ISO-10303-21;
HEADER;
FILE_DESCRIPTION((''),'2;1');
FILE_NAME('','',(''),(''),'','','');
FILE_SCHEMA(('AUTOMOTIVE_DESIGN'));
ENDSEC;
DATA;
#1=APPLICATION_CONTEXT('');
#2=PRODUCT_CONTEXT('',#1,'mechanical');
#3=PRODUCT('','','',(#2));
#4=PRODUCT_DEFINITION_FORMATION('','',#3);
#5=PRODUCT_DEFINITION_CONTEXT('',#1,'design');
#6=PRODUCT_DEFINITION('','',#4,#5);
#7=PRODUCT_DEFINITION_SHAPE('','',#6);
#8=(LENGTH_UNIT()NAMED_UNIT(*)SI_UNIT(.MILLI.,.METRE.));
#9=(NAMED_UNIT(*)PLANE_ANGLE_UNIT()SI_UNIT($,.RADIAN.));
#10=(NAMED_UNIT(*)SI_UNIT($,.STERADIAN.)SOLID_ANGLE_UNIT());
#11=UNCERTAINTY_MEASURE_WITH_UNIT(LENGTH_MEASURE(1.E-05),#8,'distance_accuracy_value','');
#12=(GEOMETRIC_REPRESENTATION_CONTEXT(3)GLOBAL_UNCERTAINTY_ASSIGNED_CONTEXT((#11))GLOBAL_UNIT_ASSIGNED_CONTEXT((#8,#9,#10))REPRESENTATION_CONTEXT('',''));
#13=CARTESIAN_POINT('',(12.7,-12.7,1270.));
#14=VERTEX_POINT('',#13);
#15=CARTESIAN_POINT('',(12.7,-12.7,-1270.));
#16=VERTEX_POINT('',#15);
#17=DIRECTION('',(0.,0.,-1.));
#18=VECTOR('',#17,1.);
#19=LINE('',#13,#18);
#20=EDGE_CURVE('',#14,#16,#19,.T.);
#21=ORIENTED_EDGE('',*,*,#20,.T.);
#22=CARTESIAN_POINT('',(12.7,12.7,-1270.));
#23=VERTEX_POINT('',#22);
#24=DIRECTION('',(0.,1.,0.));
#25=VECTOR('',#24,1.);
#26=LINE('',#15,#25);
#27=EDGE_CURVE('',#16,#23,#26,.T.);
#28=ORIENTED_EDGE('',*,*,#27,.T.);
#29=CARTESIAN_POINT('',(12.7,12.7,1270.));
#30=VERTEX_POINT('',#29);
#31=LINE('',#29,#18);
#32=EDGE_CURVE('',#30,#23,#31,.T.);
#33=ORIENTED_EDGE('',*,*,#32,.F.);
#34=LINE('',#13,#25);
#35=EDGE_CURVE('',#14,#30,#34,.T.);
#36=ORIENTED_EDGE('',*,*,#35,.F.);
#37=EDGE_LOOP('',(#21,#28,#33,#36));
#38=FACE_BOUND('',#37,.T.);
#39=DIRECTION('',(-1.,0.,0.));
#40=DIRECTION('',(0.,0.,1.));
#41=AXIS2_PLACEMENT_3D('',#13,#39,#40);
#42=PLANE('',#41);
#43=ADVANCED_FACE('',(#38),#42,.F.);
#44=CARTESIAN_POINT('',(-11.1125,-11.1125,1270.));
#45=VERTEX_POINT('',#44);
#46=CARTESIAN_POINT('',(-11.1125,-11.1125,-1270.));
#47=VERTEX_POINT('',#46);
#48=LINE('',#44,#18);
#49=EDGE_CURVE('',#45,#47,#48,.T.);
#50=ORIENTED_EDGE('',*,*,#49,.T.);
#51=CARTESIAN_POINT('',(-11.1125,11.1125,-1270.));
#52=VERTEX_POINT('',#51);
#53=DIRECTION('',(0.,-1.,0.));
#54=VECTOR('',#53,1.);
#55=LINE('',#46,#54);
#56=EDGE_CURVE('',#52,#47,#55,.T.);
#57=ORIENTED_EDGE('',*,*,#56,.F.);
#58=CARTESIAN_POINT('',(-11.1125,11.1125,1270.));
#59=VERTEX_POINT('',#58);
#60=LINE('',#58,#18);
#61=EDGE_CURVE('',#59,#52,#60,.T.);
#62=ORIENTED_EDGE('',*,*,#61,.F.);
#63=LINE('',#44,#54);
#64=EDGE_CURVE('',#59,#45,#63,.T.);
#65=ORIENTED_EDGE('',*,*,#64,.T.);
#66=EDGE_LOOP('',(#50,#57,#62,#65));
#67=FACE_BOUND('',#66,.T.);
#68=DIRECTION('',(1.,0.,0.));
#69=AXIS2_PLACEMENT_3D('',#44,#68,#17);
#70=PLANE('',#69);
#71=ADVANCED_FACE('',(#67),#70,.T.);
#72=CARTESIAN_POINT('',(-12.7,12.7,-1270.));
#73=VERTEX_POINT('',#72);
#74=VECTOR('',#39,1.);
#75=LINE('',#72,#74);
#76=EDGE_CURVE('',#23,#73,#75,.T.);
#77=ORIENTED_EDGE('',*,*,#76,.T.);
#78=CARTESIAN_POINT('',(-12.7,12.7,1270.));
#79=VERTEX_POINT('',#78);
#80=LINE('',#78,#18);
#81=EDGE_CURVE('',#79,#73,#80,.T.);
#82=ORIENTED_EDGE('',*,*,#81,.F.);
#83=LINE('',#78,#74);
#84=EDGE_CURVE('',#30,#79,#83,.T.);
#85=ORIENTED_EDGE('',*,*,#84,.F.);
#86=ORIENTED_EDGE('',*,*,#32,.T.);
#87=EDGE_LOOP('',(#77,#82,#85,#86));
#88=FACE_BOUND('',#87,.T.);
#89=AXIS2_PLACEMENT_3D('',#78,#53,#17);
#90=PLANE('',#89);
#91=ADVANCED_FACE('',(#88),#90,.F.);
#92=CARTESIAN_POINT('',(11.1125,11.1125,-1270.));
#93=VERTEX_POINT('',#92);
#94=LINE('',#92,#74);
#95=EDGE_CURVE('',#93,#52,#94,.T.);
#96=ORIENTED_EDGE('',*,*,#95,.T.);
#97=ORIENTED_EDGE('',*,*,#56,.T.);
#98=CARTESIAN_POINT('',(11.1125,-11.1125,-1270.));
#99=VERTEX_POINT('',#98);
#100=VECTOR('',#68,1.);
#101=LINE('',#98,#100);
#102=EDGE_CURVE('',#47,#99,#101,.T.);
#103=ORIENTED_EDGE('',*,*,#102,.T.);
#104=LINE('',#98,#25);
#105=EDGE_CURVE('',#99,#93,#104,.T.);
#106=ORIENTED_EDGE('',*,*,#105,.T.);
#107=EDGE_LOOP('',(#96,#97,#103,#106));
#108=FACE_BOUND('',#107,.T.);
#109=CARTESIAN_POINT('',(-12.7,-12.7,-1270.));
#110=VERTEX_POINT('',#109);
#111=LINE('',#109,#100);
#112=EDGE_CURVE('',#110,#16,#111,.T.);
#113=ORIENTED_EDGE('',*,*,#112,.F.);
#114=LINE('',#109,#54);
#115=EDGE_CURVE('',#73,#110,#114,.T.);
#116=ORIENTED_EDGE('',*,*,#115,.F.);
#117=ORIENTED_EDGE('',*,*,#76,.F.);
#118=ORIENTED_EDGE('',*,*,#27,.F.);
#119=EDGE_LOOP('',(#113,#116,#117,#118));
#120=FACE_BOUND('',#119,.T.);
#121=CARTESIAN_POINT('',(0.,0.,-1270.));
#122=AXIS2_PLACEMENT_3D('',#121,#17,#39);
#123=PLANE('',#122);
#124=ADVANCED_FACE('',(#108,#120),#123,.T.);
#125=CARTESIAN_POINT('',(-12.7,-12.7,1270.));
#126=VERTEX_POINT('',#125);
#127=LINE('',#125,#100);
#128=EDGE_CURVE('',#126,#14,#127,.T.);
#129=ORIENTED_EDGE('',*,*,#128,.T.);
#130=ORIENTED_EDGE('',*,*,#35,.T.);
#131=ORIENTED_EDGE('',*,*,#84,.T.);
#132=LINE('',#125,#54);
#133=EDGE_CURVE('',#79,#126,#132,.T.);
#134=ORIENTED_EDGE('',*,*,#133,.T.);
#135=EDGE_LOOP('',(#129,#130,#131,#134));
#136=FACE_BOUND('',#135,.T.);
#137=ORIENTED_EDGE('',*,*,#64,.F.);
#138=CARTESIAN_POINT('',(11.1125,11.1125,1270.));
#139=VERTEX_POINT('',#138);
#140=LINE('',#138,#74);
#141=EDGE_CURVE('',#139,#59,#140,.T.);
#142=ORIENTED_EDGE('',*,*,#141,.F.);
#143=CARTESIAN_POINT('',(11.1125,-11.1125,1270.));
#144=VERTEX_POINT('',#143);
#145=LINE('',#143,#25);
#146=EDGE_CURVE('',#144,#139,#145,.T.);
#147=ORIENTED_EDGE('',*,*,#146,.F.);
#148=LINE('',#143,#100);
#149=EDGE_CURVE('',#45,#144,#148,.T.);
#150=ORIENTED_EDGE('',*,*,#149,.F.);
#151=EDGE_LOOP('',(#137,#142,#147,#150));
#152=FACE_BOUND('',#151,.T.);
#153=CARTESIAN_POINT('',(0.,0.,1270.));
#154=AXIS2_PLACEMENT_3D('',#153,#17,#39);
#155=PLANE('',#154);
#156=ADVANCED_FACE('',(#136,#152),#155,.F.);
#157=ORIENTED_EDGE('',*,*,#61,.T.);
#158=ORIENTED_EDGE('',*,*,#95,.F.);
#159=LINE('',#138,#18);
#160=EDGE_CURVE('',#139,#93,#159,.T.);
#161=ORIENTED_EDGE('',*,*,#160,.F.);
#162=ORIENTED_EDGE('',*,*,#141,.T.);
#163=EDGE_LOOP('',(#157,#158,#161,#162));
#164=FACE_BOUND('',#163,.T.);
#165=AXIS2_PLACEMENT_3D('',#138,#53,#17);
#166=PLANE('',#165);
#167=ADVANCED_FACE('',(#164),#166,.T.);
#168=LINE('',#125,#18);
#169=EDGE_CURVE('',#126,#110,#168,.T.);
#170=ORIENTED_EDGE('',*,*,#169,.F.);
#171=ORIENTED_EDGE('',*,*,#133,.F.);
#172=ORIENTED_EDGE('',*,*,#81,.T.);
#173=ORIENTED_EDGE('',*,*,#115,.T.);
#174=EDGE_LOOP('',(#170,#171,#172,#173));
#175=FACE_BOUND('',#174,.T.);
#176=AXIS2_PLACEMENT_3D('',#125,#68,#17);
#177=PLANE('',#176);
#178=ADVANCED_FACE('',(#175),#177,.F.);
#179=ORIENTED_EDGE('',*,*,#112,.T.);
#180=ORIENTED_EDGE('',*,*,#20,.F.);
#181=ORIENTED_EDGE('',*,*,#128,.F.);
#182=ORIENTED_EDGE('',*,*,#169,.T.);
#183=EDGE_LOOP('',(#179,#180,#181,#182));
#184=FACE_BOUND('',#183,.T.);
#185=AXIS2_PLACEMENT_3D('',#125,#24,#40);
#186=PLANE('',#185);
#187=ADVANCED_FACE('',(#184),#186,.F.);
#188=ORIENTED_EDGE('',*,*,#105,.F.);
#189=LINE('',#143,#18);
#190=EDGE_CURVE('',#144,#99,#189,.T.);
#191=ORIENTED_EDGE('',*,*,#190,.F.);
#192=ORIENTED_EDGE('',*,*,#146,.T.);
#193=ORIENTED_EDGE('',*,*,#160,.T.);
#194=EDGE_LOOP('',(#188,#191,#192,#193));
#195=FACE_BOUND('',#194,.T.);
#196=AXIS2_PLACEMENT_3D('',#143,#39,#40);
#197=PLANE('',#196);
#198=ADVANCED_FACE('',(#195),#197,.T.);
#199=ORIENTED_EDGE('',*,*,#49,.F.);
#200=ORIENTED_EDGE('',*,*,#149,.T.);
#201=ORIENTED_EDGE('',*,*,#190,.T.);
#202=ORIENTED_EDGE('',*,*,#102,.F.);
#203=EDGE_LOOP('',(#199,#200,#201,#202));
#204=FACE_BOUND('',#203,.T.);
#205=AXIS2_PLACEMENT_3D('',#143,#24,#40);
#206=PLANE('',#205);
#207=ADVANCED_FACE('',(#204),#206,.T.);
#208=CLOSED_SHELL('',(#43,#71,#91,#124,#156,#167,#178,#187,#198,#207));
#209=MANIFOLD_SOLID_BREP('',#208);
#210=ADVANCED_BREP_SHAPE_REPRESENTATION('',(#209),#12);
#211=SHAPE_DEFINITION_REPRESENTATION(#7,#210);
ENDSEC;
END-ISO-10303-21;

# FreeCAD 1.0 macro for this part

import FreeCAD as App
import Part
import Sketcher
from FreeCAD import Vector
Q = App.Units.Quantity


def add_polygon(sketch, points):
    """Adds a closed chain of lines whose ends are joined by coincident constraints."""
    first, n = sketch.GeometryCount, len(points)
    for a, b in zip(points, points[1:] + points[:1]):
        sketch.addGeometry(Part.LineSegment(App.Vector(*a, 0), App.Vector(*b, 0)), False)
    for i in range(n):
        sketch.addConstraint(Sketcher.Constraint("Coincident", first + i, 2, first + (i + 1) % n, 1))

doc = App.newDocument("Part")
body = doc.addObject("PartDesign::Body", "Body")

# Sketch on XY plane
sketch1 = body.newObject("Sketcher::SketchObject", "Sketch")
sketch1.AttachmentSupport = (doc.getObject("XY_Plane"), [""])
sketch1.MapMode = "FlatFace"
add_polygon(sketch1, [(-13, 13), (-13, -13), (13, -13), (13, 13)])  # lines 0-3
add_polygon(sketch1, [(11, -11), (-11, -11), (-11, 11), (11, 11)])  # lines 4-7
sketch1.addConstraint([
    Sketcher.Constraint("Vertical", 0),
    Sketcher.Constraint("Horizontal", 1),
    Sketcher.Constraint("Vertical", 2),
    Sketcher.Constraint("Horizontal", 3),
    Sketcher.Constraint("Horizontal", 4),
    Sketcher.Constraint("Vertical", 5),
    Sketcher.Constraint("Horizontal", 6),
    Sketcher.Constraint("Vertical", 7),
    Sketcher.Constraint("Symmetric", 0, 2, 2, 2, -1, 1),
    Sketcher.Constraint("Symmetric", 4, 2, 6, 2, -1, 1),
    Sketcher.Constraint("Equal", 3, 0),
    Sketcher.Constraint("Equal", 6, 5),
    Sketcher.Constraint("DistanceX", 1, 1, 1, 2, Q("1 in")),
    Sketcher.Constraint("DistanceX", 4, 2, 4, 1, Q("0.875 in")),
])
pad1 = body.newObject("PartDesign::Pad", "Pad")
pad1.Profile = sketch1
pad1.Length = Q("100 in")
pad1.Midplane = True

doc.recompute()
